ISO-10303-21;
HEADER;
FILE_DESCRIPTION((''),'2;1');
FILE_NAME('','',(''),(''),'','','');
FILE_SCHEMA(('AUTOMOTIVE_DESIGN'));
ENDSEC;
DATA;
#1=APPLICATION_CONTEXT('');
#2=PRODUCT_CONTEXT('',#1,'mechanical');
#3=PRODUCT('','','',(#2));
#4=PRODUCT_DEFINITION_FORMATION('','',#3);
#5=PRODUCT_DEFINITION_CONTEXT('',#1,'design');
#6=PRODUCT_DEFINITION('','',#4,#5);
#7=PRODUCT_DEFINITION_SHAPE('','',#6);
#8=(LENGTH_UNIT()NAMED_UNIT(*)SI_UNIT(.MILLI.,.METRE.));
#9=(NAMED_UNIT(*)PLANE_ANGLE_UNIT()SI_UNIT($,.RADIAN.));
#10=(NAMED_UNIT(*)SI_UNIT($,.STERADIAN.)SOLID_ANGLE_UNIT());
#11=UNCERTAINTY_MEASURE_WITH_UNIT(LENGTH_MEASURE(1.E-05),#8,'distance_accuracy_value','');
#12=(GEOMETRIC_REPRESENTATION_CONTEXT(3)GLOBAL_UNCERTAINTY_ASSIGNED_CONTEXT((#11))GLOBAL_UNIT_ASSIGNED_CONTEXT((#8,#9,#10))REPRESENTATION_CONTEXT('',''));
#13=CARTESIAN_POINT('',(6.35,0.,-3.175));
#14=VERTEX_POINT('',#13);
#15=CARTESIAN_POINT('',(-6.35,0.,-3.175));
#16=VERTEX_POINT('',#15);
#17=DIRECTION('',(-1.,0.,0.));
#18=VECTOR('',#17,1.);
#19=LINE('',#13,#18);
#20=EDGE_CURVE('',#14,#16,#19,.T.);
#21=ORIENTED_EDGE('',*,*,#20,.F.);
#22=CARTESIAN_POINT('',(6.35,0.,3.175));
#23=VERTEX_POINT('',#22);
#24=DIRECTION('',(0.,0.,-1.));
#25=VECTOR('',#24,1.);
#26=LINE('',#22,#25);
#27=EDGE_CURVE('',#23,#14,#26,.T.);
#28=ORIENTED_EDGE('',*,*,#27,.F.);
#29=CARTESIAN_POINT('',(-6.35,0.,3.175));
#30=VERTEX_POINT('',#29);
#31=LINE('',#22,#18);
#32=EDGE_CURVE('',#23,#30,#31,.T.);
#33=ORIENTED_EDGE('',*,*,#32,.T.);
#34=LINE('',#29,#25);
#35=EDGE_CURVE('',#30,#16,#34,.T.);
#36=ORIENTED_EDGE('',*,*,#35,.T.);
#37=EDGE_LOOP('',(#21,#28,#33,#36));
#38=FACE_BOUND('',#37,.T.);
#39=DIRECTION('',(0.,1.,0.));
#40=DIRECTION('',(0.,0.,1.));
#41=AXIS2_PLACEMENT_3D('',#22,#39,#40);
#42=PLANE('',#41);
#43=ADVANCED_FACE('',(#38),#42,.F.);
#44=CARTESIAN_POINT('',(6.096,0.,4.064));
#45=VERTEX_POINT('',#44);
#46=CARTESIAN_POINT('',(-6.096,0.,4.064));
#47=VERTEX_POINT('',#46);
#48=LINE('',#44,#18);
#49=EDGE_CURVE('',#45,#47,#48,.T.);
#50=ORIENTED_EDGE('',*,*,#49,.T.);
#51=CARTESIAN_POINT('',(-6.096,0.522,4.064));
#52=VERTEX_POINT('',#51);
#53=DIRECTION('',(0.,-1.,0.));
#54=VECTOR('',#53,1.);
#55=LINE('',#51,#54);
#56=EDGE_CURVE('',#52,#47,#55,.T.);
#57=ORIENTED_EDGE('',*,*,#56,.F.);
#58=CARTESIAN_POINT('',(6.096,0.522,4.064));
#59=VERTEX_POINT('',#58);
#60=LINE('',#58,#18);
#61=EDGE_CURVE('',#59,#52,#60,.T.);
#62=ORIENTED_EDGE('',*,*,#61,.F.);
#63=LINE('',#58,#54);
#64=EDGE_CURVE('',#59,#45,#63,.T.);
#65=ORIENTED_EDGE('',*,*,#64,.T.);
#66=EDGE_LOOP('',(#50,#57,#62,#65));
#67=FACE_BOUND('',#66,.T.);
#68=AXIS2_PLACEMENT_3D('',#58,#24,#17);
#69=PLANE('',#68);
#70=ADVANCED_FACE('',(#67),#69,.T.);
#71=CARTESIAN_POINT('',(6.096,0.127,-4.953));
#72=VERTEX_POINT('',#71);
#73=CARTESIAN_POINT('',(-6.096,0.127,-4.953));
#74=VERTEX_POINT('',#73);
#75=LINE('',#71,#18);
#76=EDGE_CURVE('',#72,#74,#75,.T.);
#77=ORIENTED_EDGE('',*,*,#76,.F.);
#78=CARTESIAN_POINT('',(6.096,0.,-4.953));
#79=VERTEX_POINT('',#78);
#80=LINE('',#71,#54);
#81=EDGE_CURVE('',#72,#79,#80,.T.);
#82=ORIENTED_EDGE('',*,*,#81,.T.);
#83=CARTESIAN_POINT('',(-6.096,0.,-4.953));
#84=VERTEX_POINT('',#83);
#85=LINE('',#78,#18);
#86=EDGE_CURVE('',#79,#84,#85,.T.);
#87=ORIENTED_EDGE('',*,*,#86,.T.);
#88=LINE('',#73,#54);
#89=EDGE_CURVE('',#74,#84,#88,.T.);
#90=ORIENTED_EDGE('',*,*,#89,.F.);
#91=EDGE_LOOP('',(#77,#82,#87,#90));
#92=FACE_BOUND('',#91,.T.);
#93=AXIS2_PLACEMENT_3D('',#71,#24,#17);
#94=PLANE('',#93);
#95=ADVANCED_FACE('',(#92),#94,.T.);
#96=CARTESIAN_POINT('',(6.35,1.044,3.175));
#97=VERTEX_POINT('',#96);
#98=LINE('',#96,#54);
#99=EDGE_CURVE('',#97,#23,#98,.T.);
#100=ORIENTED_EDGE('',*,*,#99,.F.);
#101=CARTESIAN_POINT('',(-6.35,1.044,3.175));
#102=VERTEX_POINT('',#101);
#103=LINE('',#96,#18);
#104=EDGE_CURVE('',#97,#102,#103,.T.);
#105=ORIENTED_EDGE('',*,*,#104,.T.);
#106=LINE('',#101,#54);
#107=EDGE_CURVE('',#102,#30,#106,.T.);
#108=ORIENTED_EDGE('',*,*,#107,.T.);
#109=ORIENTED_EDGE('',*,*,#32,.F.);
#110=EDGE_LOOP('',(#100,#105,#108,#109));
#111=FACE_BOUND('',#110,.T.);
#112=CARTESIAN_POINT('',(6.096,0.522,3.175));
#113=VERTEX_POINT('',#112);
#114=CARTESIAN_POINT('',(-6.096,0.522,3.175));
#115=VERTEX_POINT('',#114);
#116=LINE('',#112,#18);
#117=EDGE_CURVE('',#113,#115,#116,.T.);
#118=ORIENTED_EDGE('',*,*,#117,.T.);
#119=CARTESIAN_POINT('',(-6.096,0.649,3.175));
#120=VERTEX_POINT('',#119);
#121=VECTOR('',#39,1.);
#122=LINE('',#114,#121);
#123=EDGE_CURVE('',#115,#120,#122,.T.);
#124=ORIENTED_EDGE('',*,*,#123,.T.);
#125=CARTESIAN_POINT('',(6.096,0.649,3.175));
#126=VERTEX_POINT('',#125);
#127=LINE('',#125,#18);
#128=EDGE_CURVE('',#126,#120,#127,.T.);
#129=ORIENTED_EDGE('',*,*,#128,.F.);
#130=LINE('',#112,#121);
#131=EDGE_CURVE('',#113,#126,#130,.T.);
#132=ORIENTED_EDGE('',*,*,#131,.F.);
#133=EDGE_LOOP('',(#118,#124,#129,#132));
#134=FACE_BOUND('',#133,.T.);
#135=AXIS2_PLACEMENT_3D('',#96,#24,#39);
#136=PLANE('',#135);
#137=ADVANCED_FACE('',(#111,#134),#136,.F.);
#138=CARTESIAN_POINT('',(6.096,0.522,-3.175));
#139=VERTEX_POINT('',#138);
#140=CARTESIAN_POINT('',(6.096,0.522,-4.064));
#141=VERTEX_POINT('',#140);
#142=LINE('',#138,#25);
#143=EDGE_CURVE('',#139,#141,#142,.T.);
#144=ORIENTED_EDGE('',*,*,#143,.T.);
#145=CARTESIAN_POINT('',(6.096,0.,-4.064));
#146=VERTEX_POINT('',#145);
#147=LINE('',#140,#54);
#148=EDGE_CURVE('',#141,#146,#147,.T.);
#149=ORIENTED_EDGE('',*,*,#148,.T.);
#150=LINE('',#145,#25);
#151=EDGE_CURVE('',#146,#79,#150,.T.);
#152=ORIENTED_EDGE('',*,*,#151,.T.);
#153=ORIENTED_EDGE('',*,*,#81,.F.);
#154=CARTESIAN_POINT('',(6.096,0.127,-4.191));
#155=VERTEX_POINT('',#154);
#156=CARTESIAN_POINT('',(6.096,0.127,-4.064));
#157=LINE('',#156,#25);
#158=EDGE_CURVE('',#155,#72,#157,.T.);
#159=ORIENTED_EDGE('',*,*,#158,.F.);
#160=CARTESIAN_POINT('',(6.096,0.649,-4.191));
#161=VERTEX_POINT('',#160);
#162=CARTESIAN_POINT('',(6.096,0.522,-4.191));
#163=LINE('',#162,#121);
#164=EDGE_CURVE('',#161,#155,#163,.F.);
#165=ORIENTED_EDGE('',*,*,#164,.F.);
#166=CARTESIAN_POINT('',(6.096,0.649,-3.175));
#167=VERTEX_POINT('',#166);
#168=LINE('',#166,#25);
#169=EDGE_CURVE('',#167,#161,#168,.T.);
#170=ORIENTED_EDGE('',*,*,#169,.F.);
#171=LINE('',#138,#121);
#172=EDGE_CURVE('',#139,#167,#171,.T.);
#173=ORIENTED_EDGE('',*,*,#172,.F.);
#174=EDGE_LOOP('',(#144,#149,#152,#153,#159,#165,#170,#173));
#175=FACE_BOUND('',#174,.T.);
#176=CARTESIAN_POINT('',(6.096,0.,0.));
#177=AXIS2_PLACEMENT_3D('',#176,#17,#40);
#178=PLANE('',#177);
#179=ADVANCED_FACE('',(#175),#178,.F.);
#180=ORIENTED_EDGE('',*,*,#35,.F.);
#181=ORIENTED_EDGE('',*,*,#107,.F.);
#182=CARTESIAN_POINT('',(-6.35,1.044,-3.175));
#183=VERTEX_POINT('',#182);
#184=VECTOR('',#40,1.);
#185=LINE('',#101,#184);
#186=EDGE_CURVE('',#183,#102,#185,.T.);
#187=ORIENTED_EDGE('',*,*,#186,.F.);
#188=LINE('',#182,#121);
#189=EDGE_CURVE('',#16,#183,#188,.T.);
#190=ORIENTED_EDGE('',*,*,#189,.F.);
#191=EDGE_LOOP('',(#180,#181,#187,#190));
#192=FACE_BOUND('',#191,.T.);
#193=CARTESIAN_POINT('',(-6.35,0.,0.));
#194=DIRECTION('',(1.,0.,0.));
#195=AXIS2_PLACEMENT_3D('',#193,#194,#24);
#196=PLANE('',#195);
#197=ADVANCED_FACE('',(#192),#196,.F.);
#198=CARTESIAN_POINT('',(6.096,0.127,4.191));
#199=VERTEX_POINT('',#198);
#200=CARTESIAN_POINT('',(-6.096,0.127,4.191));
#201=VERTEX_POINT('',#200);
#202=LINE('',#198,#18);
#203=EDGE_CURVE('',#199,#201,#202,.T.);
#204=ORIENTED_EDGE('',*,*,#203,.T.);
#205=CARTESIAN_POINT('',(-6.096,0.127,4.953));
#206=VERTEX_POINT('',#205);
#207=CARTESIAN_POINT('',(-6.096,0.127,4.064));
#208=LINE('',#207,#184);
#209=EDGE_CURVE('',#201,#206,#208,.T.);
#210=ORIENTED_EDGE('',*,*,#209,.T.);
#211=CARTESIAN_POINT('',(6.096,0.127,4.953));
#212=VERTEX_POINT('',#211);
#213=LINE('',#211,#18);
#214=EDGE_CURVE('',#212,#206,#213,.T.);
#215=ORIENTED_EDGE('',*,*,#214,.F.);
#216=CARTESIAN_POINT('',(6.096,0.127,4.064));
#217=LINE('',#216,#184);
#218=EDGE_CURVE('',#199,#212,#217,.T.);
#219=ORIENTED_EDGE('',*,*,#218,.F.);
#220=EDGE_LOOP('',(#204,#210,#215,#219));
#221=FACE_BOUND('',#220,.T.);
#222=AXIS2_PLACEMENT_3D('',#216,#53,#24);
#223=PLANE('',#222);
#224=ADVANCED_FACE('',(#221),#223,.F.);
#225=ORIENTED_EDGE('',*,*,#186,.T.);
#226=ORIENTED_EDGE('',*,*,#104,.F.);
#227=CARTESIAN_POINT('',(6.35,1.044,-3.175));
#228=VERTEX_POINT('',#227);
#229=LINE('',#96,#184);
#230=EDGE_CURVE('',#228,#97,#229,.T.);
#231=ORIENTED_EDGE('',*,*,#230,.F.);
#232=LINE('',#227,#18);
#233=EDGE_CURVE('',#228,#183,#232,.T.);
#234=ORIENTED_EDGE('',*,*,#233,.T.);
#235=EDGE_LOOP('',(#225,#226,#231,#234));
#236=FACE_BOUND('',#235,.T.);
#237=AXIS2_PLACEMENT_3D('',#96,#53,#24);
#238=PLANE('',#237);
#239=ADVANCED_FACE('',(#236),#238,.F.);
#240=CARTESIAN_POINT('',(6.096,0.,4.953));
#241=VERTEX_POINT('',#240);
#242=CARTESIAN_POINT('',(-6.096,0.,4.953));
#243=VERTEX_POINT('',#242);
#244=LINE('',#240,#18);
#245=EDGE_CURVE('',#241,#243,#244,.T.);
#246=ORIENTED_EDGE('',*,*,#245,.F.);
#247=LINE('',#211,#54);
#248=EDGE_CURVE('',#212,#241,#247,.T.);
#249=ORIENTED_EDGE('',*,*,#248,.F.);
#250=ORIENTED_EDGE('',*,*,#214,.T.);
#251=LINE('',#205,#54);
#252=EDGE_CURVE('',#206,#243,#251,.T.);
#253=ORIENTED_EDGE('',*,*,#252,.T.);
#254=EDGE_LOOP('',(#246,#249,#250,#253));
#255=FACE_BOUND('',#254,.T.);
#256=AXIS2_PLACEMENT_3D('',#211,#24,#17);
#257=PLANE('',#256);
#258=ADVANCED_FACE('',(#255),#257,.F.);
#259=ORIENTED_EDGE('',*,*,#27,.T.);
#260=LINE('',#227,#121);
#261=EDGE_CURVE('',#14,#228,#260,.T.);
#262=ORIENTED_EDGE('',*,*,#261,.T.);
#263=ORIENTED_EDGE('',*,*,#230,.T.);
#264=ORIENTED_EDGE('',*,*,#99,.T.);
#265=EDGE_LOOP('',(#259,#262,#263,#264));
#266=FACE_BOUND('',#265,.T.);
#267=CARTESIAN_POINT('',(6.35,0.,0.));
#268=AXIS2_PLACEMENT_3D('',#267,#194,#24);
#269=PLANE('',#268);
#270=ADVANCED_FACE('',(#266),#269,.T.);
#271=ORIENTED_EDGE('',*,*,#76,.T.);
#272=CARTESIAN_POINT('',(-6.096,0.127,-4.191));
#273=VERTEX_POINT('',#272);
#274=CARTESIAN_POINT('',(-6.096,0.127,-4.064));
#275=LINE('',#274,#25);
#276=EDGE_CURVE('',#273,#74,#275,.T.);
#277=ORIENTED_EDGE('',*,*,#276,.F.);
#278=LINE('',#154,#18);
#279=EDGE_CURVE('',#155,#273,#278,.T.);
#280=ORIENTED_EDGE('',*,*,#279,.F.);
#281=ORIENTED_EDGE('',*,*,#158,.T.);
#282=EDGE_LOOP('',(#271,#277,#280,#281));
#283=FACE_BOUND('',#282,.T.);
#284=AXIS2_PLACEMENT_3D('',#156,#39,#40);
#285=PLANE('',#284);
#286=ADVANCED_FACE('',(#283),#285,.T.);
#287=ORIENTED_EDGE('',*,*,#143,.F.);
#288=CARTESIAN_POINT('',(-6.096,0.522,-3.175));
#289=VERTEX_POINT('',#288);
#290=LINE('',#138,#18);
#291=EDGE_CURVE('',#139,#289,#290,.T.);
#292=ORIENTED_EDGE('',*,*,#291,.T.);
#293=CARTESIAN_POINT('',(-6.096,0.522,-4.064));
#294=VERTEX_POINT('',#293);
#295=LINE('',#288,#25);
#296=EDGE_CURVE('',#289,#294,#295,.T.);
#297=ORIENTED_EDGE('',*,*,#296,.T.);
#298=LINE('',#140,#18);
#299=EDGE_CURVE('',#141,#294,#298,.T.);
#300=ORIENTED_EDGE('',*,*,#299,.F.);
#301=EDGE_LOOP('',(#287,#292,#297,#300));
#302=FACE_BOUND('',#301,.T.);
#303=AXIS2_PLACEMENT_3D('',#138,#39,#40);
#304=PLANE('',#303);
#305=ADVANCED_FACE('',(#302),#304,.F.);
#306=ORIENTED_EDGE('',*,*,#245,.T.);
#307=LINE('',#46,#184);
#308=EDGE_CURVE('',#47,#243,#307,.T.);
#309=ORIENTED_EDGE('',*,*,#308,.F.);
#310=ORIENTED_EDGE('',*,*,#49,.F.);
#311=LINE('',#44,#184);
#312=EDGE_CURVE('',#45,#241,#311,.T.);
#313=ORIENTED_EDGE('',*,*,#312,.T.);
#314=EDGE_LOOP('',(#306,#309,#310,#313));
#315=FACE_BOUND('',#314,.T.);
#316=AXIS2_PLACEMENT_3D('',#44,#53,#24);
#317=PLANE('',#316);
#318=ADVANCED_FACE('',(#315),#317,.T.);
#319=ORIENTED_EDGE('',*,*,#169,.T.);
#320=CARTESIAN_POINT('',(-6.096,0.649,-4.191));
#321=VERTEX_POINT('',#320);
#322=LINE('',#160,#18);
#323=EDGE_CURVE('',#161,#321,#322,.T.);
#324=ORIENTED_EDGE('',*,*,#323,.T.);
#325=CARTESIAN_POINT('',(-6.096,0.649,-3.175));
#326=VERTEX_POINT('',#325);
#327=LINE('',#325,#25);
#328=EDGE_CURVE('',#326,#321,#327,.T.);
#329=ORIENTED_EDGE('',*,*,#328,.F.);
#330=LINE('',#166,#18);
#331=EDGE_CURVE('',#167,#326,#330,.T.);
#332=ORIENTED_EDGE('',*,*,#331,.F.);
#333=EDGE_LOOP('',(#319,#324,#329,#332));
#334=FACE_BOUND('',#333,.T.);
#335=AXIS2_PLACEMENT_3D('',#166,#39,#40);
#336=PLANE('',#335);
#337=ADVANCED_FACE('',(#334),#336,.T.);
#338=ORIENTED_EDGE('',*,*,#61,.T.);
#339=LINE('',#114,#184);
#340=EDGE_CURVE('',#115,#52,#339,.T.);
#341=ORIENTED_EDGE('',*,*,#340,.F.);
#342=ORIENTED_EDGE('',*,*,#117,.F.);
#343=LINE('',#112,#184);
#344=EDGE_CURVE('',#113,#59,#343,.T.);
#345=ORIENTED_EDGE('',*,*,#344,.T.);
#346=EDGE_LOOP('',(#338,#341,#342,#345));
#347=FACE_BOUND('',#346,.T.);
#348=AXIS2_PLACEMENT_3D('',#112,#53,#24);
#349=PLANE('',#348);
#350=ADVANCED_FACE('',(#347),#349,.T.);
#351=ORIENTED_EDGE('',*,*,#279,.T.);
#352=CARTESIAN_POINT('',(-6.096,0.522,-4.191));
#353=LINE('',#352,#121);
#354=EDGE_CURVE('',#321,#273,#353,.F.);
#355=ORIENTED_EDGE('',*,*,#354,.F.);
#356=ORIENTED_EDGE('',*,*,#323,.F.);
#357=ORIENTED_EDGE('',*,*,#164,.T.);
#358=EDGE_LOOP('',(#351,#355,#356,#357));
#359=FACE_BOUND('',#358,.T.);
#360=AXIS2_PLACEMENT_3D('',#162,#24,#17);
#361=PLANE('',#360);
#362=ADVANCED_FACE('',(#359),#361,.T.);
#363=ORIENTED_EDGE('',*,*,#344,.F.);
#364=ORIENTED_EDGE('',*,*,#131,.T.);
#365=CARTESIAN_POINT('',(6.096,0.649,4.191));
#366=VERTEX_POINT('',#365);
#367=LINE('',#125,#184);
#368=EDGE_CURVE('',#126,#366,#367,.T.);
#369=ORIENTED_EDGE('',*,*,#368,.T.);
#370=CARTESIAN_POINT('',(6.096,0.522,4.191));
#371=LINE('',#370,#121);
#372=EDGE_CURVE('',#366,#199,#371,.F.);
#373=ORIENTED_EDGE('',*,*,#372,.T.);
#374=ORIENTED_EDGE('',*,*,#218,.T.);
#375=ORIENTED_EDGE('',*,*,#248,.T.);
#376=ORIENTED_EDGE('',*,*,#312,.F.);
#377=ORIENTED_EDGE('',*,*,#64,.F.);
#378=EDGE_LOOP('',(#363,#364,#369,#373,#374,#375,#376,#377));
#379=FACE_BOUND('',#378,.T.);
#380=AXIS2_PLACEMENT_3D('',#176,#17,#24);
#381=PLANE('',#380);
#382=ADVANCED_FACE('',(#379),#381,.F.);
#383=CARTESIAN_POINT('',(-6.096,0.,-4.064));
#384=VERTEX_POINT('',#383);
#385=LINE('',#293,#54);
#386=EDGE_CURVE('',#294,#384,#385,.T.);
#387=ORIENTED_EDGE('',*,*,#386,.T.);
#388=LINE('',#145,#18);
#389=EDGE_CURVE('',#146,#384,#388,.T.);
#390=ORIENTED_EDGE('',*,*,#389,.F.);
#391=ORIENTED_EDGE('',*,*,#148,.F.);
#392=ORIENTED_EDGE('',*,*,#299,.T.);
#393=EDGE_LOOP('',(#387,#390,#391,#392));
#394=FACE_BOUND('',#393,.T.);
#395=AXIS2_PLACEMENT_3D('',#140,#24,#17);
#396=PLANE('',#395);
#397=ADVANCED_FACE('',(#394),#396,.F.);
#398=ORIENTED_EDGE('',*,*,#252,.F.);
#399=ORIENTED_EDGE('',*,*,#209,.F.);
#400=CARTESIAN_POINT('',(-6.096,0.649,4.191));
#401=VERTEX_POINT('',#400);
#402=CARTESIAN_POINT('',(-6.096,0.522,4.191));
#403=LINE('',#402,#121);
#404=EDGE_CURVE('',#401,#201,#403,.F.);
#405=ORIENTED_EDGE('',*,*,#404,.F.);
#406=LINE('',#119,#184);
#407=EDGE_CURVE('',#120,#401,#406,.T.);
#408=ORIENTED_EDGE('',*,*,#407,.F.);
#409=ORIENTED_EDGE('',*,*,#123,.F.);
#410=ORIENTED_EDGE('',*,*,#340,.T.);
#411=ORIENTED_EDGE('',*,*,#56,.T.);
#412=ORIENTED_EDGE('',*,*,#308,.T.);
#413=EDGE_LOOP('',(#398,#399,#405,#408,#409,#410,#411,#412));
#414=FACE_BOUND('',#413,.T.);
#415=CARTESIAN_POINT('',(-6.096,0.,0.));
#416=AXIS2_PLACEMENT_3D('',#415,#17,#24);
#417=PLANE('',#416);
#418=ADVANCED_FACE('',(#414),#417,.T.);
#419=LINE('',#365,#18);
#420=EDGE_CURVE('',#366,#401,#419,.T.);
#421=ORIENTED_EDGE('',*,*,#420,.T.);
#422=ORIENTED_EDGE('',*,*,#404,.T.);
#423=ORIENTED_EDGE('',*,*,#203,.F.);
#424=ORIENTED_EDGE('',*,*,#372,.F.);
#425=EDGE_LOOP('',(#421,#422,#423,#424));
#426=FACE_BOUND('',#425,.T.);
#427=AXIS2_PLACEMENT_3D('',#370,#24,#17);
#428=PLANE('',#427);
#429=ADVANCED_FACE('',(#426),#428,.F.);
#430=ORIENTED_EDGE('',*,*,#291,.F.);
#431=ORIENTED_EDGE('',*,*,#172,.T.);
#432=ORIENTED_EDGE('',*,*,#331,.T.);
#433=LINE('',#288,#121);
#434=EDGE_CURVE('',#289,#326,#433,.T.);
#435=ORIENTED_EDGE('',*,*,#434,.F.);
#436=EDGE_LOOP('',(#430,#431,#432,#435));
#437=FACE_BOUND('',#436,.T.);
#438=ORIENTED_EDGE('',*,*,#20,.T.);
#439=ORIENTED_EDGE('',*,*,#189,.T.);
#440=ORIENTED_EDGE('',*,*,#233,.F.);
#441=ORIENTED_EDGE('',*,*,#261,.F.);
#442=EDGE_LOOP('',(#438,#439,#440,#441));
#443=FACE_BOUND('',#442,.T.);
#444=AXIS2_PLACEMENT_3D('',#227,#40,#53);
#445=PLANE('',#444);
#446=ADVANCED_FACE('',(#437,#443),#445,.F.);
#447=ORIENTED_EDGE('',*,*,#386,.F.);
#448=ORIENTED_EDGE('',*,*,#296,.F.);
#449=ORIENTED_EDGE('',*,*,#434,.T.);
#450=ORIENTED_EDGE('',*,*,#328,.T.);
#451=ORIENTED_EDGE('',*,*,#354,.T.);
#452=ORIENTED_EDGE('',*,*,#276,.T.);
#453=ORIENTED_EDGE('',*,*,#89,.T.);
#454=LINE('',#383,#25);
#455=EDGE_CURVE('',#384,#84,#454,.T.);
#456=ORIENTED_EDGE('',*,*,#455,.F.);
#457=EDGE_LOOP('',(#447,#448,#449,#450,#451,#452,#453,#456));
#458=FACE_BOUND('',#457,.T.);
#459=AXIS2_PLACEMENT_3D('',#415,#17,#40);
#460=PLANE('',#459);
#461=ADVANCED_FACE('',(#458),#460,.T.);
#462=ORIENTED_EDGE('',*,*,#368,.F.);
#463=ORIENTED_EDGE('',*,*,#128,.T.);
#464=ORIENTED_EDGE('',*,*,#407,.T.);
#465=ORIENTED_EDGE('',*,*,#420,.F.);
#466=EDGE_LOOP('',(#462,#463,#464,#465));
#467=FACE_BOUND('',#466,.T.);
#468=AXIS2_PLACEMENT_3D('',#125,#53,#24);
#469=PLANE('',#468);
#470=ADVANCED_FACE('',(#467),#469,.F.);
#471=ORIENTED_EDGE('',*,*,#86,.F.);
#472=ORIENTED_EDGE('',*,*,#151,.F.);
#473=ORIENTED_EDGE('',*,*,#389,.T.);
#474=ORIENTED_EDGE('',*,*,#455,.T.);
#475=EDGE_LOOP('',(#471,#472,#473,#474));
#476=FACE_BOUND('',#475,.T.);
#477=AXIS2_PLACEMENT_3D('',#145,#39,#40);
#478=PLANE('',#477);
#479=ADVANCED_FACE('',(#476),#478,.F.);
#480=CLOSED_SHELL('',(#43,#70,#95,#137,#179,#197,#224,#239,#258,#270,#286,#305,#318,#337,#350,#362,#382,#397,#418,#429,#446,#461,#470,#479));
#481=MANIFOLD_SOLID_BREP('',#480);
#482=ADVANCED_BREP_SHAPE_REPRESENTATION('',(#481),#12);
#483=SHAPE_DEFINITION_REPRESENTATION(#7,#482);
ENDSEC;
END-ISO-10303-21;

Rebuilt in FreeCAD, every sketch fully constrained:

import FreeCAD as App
import Part
import Sketcher
Q = App.Units.Quantity


def add_polygon(sketch, points):
    """Adds a closed chain of lines whose ends are joined by coincident constraints."""
    first, n = sketch.GeometryCount, len(points)
    for a, b in zip(points, points[1:] + points[:1]):
        sketch.addGeometry(Part.LineSegment(App.Vector(*a, 0), App.Vector(*b, 0)), False)
    for i in range(n):
        sketch.addConstraint(Sketcher.Constraint("Coincident", first + i, 2, first + (i + 1) % n, 1))

doc = App.newDocument("Part")
params = doc.addObject("Spreadsheet::Sheet", "Params")
for row, (alias, value) in enumerate([
    ("sketch1_height", "0.25 in"),
    ("pad1_length", "0.5 in"),
    ("sketch2_height", "0.03 in"),
    ("sketch2_height2", "0.04 in"),
    ("sketch2_width", "0.005 in"),
    ("pad2_length", "0.48 in"),
], start=1):
    params.set(f"A{row}", alias)
    params.set(f"B{row}", "=" + value)
    params.setAlias(f"B{row}", alias)

body = doc.addObject("PartDesign::Body", "Body")

# Sketch on YZ plane
sketch1 = doc.addObject("Sketcher::SketchObject", "Sketch")
body.addObject(sketch1)
sketch1.AttachmentSupport = (doc.YZ_Plane, [""])
sketch1.MapMode = "FlatFace"
add_polygon(sketch1, [(1, 3.2), (0, 3.2), (0, -3.2), (1, -3.2)])  # lines 0-3
sketch1.addConstraint([
    Sketcher.Constraint("Horizontal", 0),
    Sketcher.Constraint("Vertical", 1),
    Sketcher.Constraint("Horizontal", 2),
    Sketcher.Constraint("Vertical", 3),
    Sketcher.Constraint("Symmetric", 0, 2, 1, 2, -1, 1),
    Sketcher.Constraint("DistanceY", 1, 2, 1, 1, Q("0.25 in")),
    Sketcher.Constraint("DistanceX", 0, 2, 0, 1, 1.044),
])
sketch1.setExpression("Constraints[9]", "Params.sketch1_height")
pad1 = doc.addObject("PartDesign::Pad", "Pad")
body.addObject(pad1)
pad1.Profile = sketch1
pad1.setExpression("Length", "Params.pad1_length")
pad1.Midplane = True

# Sketch on YZ plane
sketch2 = doc.addObject("Sketcher::SketchObject", "Sketch001")
body.addObject(sketch2)
sketch2.AttachmentSupport = (doc.YZ_Plane, [""])
sketch2.MapMode = "FlatFace"
add_polygon(sketch2, [(0.52, -3.17), (0.52, -4.06), (0, -4.06), (0, -4.95), (0.13, -4.95), (0.13, -4.19), (0.65, -4.19), (0.65, -3.17)])  # lines 0-7
sketch2.addConstraint([
    Sketcher.Constraint("Vertical", 0),
    Sketcher.Constraint("Horizontal", 1),
    Sketcher.Constraint("Vertical", 2),
    Sketcher.Constraint("Horizontal", 3),
    Sketcher.Constraint("Vertical", 4),
    Sketcher.Constraint("Horizontal", 5),
    Sketcher.Constraint("Vertical", 6),
    Sketcher.Constraint("Horizontal", 7),
    Sketcher.Constraint("PointOnObject", 1, 2, -2),
    Sketcher.Constraint("Equal", 1, 5),
    Sketcher.Constraint("Equal", 0, 2),
    Sketcher.Constraint("DistanceY", 4, 1, 4, 2, Q("0.03 in")),
    Sketcher.Constraint("DistanceY", 6, 1, 6, 2, Q("0.04 in")),
    Sketcher.Constraint("DistanceX", 3, 1, 3, 2, Q("0.005 in")),
    Sketcher.Constraint("DistanceY", 0, 2, -1, 1, Q("0.16 in")),
    Sketcher.Constraint("DistanceX", 1, 2, 1, 1, 0.522),
])
sketch2.setExpression("Constraints[19]", "Params.sketch2_height")
sketch2.setExpression("Constraints[20]", "Params.sketch2_height2")
sketch2.setExpression("Constraints[21]", "Params.sketch2_width")
pad2 = doc.addObject("PartDesign::Pad", "Pad001")
body.addObject(pad2)
pad2.Profile = sketch2
pad2.setExpression("Length", "Params.pad2_length")
pad2.Midplane = True
doc.recompute()

mirrored = doc.addObject("PartDesign::Mirrored", "Mirrored")
body.addObject(mirrored)
mirrored.Originals = [pad2]
mirrored.MirrorPlane = (doc.XY_Plane, [""])
body.Tip = mirrored

doc.recompute()
